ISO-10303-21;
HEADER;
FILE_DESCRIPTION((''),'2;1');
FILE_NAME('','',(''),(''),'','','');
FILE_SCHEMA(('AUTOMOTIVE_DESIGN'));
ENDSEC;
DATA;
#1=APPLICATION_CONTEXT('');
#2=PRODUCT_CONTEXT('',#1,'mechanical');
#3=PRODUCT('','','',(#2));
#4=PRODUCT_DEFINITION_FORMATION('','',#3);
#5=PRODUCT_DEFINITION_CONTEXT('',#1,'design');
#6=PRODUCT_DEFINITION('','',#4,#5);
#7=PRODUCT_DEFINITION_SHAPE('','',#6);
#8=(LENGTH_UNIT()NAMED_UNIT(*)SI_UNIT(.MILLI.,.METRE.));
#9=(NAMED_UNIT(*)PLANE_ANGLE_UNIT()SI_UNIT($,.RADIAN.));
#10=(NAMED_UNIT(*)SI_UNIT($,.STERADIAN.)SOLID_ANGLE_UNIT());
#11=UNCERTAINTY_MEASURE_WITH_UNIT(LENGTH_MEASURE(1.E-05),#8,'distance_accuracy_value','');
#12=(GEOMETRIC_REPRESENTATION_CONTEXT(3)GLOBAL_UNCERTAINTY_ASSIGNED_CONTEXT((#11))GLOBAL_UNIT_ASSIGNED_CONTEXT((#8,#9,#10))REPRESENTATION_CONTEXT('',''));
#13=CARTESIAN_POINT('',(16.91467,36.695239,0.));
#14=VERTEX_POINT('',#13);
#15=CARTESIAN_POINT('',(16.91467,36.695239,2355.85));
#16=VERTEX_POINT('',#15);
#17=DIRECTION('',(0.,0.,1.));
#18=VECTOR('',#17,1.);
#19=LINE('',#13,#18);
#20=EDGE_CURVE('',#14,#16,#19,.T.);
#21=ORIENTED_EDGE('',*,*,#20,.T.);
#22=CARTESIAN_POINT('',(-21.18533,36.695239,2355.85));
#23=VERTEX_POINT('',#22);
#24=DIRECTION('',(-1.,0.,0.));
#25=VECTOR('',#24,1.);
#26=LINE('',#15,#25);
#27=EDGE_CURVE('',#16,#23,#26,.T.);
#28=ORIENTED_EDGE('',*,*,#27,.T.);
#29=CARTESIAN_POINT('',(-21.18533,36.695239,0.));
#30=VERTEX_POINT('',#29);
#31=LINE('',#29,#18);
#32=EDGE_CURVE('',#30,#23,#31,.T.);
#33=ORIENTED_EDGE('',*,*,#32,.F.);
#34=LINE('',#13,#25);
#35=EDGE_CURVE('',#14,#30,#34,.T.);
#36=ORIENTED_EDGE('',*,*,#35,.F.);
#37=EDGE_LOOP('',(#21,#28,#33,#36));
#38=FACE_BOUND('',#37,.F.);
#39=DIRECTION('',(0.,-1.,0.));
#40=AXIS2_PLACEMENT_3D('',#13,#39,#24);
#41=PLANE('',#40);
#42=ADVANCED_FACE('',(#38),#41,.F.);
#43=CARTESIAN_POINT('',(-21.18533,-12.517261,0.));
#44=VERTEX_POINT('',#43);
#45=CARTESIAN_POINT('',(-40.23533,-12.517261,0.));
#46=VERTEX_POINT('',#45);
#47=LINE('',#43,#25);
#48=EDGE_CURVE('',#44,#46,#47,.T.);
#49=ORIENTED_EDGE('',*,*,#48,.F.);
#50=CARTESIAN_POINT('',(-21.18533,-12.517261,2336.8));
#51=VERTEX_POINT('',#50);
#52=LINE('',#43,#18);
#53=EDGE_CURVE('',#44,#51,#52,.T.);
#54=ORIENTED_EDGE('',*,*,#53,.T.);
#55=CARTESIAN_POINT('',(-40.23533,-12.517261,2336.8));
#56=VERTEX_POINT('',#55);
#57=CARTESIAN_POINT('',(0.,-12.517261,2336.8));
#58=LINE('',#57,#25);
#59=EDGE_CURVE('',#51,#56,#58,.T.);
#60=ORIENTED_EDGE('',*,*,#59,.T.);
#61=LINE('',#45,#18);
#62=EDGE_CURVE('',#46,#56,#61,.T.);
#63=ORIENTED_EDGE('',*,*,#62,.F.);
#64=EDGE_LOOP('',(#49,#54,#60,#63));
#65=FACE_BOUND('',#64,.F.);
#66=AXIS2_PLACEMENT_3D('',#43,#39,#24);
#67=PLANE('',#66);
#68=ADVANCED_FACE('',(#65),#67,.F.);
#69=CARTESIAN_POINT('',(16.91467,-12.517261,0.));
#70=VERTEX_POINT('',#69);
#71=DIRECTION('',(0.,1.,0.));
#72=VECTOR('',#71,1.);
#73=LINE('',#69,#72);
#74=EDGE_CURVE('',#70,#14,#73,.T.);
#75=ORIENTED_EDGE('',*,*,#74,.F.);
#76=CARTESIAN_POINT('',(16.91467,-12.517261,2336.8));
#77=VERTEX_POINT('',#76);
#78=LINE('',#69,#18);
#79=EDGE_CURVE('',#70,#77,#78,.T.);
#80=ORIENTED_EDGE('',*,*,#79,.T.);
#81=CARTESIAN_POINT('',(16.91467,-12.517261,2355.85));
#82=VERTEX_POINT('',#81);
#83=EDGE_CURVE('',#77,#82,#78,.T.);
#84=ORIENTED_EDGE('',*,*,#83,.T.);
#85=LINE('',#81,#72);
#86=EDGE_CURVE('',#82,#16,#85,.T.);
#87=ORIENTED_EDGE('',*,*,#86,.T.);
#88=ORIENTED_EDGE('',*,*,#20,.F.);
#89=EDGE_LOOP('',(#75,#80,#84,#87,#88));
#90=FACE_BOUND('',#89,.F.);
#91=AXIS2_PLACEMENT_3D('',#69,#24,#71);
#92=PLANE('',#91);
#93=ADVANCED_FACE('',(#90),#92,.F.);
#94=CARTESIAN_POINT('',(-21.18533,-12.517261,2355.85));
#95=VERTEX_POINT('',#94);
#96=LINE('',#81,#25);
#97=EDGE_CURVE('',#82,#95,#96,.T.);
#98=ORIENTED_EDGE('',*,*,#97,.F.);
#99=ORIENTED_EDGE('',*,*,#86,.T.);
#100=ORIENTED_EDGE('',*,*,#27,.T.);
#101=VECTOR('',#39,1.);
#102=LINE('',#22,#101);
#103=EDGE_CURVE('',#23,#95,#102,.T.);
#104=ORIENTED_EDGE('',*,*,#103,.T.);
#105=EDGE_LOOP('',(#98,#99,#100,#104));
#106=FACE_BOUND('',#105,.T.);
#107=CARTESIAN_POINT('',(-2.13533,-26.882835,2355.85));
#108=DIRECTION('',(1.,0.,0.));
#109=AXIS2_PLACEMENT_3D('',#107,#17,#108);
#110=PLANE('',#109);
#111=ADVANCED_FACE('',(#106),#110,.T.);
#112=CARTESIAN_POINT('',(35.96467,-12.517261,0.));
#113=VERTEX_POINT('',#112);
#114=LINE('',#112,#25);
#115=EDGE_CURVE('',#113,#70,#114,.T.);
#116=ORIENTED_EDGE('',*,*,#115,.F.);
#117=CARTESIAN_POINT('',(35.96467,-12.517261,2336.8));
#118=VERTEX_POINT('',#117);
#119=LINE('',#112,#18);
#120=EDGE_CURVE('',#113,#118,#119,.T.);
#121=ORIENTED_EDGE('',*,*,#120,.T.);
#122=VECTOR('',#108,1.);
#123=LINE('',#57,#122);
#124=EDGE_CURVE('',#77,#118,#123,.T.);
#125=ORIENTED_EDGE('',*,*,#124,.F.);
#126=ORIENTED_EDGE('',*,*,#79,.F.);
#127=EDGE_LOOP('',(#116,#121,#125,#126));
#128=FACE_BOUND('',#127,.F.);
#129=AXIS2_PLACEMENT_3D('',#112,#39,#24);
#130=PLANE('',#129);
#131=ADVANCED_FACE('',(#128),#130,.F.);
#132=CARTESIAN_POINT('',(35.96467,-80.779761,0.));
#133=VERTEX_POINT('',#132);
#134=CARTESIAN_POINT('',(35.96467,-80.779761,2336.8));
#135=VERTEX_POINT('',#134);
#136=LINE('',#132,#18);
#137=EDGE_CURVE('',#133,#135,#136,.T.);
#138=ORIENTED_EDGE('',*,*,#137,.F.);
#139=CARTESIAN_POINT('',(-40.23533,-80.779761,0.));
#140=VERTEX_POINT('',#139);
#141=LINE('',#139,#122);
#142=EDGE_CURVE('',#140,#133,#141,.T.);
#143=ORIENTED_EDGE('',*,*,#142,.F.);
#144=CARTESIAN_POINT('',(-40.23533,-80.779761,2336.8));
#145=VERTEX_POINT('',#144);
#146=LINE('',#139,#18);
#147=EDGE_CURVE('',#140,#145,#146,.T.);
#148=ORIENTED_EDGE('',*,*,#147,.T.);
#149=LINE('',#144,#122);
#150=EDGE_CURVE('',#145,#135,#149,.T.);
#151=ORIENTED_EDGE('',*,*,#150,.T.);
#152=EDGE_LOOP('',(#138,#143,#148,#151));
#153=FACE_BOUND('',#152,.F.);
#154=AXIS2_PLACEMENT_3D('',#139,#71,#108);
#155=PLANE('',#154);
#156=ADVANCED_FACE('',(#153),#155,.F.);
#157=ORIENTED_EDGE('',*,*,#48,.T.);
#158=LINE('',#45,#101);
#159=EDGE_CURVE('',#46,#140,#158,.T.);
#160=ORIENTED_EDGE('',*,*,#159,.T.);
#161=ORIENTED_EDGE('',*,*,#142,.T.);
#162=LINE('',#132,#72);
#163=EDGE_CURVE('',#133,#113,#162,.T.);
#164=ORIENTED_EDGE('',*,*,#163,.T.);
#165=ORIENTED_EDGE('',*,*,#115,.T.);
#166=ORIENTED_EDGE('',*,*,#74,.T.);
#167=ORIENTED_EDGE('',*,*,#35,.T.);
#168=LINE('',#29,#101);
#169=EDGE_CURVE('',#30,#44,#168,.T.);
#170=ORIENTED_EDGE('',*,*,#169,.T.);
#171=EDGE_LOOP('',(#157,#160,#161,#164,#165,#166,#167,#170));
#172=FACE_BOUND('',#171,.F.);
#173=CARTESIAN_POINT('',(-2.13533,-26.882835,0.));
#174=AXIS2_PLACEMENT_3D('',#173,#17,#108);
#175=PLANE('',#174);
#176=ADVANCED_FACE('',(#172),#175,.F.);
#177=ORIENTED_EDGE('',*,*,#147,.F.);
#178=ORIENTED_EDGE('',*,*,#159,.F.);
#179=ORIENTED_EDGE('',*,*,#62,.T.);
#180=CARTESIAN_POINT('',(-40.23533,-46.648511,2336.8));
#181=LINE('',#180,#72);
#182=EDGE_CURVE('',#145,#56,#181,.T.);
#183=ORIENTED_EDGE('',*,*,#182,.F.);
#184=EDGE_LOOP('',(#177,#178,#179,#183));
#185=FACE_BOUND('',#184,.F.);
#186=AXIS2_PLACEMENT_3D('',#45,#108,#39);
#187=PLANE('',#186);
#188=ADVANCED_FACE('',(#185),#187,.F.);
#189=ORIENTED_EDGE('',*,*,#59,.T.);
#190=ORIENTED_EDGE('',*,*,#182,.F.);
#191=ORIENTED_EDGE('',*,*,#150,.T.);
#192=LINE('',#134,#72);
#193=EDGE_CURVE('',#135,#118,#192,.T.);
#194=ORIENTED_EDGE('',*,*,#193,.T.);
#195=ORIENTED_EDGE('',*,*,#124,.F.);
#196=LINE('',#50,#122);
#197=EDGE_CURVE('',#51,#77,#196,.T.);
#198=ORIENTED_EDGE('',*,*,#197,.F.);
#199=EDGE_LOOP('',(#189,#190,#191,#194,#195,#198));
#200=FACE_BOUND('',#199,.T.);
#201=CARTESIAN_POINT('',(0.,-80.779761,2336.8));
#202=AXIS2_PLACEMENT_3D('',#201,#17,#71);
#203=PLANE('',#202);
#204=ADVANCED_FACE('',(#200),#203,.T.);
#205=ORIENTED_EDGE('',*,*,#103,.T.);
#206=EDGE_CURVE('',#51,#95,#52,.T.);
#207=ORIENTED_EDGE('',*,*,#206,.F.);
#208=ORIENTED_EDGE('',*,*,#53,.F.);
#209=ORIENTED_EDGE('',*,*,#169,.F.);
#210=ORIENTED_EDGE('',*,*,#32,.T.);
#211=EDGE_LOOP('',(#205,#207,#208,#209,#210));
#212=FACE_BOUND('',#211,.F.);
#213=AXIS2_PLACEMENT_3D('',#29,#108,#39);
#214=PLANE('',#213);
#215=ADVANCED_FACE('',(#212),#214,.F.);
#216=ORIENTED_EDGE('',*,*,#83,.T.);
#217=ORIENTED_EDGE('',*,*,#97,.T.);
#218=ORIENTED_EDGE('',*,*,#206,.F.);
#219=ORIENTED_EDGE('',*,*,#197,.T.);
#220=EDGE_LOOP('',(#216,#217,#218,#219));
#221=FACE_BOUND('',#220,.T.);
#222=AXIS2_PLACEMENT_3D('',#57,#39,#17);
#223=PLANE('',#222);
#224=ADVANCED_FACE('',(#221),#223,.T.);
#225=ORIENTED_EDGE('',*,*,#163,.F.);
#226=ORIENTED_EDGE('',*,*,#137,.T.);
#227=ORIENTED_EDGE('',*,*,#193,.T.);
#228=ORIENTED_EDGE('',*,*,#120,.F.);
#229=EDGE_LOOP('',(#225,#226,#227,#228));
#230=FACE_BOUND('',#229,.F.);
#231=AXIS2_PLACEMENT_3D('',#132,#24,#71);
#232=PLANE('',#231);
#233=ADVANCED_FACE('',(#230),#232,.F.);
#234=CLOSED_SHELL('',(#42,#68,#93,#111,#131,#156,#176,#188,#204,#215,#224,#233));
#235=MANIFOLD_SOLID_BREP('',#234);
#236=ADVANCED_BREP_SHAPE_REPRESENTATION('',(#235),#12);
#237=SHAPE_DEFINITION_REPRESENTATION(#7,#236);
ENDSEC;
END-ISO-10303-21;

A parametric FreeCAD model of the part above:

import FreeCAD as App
import Part
import Sketcher

V = App.Vector
Q = App.Units.Quantity


def add_polygon(sketch, points):
    """Adds a closed chain of lines whose ends are joined by coincident constraints."""
    first, n = sketch.GeometryCount, len(points)
    for a, b in zip(points, points[1:] + points[:1]):
        sketch.addGeometry(Part.LineSegment(App.Vector(*a, 0), App.Vector(*b, 0)), False)
    for i in range(n):
        sketch.addConstraint(Sketcher.Constraint("Coincident", first + i, 2, first + (i + 1) % n, 1))

doc = App.newDocument("Part")
body = doc.addObject("PartDesign::Body", "Body")

sketch1 = body.newObject("Sketcher::SketchObject", "Sketch")
sketch1.AttachmentSupport = (doc.getObject("XY_Plane"), [""])
sketch1.MapMode = "FlatFace"
add_polygon(sketch1, [(17, -13), (17, 37), (-21, 37), (-21, -13), (-40, -13), (-40, -81), (36, -81), (36, -13)])
sketch1.addConstraint([
    Sketcher.Constraint("Vertical", 0),
    Sketcher.Constraint("Horizontal", 1),
    Sketcher.Constraint("Vertical", 2),
    Sketcher.Constraint("Horizontal", 3),
    Sketcher.Constraint("Vertical", 4),
    Sketcher.Constraint("Horizontal", 5),
    Sketcher.Constraint("Vertical", 6),
    Sketcher.Constraint("Horizontal", 7),
    Sketcher.Constraint("Horizontal", 3, 2, 6, 2),
    Sketcher.Constraint("Equal", 3, 7),
    Sketcher.Constraint("DistanceX", 5, 1, 5, 2, Q("3 in")),
    Sketcher.Constraint("DistanceX", 1, 2, 1, 1, Q("1.5 in")),
    Sketcher.Constraint("DistanceY", 0, 1, 0, 2, Q("1.9375 in")),
    Sketcher.Constraint("DistanceY", 4, 2, 4, 1, Q("2.6875 in")),
    Sketcher.Constraint("DistanceX", -1, 1, 0, 2, 16.91467),
    Sketcher.Constraint("DistanceY", -1, 1, 0, 2, 36.695239),
])
pad1 = body.newObject("PartDesign::Pad", "Pad")
pad1.Profile = sketch1
pad1.Length = Q("92.75 in")

sketch2 = body.newObject("Sketcher::SketchObject", "Sketch001")
sketch2.AttachmentSupport = (doc.getObject("YZ_Plane"), [""])
sketch2.MapMode = "FlatFace"
add_polygon(sketch2, [(-81, 2356), (-81, 2337), (-13, 2337), (-13, 2356)])
sketch2.addConstraint([
    Sketcher.Constraint("Vertical", 0),
    Sketcher.Constraint("Horizontal", 1),
    Sketcher.Constraint("Vertical", 2),
    Sketcher.Constraint("Horizontal", 3),
    Sketcher.Constraint("DistanceY", -1, 1, 0, 2, Q("92 in")),
    Sketcher.Constraint("DistanceY", 0, 2, 0, 1, Q("0.75 in")),
    Sketcher.Constraint("DistanceX", 1, 1, 1, 2, Q("2.6875 in")),
    Sketcher.Constraint("DistanceX", 0, 2, -1, 1, 80.779761),
])
pocket1 = body.newObject("PartDesign::Pocket", "Pocket")
pocket1.Profile = sketch2
pocket1.Type = "ThroughAll"
pocket1.Midplane = True

doc.recompute()
